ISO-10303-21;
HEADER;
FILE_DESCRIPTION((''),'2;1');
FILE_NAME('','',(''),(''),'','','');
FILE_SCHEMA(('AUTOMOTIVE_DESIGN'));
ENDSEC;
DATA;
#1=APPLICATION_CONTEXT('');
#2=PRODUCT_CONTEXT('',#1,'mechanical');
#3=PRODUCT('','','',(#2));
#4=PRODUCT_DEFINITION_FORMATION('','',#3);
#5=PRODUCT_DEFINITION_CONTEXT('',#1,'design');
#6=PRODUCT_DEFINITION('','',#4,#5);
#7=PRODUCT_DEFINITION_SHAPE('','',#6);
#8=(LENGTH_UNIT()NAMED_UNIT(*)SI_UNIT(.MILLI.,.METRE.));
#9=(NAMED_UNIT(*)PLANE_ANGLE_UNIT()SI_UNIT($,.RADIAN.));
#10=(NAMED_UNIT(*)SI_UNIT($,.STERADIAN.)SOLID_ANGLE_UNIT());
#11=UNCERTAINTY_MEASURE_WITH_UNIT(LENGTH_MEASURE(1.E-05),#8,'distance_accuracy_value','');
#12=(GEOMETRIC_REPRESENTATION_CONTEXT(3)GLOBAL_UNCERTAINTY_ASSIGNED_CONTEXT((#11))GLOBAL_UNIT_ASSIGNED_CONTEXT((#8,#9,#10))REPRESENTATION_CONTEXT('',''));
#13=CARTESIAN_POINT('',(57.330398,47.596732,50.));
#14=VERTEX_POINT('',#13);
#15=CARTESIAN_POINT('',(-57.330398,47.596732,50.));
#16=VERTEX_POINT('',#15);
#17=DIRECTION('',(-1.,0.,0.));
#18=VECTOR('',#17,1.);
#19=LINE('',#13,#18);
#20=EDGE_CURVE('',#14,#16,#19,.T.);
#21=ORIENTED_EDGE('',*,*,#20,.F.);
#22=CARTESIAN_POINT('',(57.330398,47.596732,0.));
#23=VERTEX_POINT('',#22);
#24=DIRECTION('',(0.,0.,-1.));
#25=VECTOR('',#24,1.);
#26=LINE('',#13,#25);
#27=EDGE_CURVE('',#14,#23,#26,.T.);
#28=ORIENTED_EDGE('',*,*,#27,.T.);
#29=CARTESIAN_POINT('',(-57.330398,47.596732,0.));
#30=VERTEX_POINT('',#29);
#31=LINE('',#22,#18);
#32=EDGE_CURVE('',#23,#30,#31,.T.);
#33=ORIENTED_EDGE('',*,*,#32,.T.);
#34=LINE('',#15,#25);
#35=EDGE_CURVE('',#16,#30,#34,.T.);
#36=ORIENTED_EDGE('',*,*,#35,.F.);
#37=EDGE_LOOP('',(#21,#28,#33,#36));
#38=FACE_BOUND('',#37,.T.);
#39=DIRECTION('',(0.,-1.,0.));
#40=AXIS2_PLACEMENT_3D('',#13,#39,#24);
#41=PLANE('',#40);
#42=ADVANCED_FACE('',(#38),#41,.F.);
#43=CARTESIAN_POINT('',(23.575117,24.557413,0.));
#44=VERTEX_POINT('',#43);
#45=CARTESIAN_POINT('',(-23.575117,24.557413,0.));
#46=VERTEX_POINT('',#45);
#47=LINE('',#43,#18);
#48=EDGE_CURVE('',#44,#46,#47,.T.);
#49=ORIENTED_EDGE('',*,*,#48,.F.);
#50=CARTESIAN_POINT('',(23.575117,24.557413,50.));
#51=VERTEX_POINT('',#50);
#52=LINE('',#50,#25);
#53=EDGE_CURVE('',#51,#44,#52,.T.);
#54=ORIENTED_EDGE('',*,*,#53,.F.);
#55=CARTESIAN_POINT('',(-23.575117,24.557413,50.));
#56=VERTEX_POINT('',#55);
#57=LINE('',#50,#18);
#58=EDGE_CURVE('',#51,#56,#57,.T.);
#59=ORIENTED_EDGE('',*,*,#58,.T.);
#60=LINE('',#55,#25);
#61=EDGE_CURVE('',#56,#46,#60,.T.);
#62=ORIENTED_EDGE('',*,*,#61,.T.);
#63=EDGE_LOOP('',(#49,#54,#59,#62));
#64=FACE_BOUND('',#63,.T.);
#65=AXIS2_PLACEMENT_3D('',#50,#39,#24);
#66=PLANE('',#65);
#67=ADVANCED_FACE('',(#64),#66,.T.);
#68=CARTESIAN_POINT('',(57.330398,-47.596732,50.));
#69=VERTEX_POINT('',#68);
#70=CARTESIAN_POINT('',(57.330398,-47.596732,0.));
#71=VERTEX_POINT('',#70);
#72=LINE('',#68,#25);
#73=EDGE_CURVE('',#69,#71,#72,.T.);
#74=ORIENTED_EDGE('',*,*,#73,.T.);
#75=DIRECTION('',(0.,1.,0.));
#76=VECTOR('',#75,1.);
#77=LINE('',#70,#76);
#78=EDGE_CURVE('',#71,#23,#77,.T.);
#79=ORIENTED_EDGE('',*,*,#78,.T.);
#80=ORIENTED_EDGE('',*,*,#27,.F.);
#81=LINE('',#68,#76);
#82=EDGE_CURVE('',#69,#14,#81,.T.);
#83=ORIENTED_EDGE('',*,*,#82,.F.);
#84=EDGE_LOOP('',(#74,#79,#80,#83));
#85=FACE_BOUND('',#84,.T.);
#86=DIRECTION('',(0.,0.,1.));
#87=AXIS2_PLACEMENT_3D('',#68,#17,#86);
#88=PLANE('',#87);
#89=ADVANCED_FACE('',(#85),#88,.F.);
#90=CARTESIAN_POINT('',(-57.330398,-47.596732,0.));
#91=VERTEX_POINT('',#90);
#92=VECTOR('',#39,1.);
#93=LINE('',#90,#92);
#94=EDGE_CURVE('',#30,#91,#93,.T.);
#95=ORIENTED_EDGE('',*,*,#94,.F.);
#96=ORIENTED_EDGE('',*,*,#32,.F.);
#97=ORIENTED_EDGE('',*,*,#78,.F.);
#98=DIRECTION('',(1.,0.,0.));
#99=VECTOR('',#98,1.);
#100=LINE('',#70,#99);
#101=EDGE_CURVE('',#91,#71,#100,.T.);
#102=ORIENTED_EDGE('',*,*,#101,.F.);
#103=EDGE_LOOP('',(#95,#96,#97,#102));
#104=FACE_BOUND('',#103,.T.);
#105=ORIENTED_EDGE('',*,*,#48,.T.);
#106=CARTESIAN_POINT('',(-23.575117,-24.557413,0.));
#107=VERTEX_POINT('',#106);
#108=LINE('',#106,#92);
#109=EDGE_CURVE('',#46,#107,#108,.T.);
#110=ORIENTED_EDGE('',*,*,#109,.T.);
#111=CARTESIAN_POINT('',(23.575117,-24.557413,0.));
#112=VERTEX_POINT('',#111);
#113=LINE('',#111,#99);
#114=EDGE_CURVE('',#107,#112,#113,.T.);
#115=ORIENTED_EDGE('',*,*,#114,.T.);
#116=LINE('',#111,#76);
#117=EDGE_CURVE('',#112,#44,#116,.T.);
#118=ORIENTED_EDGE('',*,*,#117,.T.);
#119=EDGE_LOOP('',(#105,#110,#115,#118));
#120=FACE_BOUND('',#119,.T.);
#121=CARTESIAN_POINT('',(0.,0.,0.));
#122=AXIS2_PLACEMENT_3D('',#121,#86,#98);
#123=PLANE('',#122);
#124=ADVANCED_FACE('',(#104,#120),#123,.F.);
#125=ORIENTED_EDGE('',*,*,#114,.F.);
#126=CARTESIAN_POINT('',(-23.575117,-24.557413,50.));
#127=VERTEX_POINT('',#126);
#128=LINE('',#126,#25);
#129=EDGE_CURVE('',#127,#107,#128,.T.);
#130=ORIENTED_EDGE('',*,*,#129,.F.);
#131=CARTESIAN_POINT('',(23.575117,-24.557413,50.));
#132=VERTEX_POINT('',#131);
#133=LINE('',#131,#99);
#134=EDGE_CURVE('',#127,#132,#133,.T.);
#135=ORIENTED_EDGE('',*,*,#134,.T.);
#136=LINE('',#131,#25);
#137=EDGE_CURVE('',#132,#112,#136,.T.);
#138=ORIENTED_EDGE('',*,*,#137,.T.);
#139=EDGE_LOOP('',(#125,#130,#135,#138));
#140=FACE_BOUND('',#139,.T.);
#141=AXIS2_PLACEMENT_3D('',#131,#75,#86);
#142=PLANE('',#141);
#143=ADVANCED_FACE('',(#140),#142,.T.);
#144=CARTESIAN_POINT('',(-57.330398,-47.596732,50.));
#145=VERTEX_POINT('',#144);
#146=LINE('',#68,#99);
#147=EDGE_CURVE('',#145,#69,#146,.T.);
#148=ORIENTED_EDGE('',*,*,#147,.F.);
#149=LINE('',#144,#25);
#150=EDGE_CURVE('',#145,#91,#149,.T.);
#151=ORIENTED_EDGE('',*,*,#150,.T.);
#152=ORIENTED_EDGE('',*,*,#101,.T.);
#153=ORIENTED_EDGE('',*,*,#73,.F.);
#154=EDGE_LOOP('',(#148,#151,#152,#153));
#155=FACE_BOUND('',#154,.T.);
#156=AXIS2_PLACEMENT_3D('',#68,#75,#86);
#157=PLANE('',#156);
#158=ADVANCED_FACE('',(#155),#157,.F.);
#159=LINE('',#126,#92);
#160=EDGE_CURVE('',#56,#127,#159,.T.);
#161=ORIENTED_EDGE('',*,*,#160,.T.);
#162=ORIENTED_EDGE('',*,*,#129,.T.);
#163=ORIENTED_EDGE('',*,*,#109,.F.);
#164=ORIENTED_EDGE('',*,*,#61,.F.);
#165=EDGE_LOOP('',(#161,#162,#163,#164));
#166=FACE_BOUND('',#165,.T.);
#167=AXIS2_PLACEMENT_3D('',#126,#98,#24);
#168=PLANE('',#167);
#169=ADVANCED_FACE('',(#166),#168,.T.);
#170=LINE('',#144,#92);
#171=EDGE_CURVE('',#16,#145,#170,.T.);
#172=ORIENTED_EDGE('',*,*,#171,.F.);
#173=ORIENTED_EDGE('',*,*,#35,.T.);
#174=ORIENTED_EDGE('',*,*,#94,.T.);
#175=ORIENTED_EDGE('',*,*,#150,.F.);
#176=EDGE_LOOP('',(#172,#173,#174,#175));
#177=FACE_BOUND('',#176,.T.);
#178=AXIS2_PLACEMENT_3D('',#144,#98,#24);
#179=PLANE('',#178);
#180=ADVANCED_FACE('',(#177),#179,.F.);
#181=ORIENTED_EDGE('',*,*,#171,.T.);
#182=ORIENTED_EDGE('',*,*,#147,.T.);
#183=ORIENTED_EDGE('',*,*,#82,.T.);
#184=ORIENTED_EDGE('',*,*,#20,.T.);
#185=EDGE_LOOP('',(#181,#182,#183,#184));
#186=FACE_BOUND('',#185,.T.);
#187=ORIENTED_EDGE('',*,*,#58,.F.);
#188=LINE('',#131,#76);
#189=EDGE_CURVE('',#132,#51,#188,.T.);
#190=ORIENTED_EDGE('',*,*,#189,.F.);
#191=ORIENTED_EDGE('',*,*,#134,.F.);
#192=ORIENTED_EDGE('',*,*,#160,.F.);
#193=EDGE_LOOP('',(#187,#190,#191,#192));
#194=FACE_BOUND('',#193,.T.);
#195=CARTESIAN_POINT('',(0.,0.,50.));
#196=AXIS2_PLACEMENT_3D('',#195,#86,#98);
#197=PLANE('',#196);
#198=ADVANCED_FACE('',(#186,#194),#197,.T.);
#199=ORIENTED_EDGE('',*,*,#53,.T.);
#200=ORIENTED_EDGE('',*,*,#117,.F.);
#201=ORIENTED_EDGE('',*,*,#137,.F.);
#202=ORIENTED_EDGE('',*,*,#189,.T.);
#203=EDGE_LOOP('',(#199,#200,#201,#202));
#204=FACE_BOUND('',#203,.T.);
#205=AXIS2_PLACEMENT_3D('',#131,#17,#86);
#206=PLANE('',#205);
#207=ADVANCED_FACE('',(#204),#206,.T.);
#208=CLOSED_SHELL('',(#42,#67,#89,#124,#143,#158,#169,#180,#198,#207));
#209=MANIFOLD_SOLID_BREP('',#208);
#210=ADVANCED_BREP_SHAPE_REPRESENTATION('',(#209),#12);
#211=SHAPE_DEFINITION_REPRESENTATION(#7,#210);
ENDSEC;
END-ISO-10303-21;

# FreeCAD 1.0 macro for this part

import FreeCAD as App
import Part
import Sketcher

doc = App.newDocument("Part")
body = doc.addObject("PartDesign::Body", "Body")

# Sketch on XY plane
sketch1 = body.newObject("Sketcher::SketchObject", "Sketch")
sketch1.AttachmentSupport = (doc.getObject("XY_Plane"), [""])
sketch1.MapMode = "FlatFace"
sketch1.addGeometry(Part.LineSegment(App.Vector(-57, 48, 0), App.Vector(-57, -48, 0)), False)
sketch1.addGeometry(Part.LineSegment(App.Vector(-57, -48, 0), App.Vector(57, -48, 0)), False)
sketch1.addGeometry(Part.LineSegment(App.Vector(57, -48, 0), App.Vector(57, 48, 0)), False)
sketch1.addGeometry(Part.LineSegment(App.Vector(57, 48, 0), App.Vector(-57, 48, 0)), False)
sketch1.addGeometry(Part.LineSegment(App.Vector(24, -25, 0), App.Vector(-24, -25, 0)), False)
sketch1.addGeometry(Part.LineSegment(App.Vector(-24, -25, 0), App.Vector(-24, 25, 0)), False)
sketch1.addGeometry(Part.LineSegment(App.Vector(-24, 25, 0), App.Vector(24, 25, 0)), False)
sketch1.addGeometry(Part.LineSegment(App.Vector(24, 25, 0), App.Vector(24, -25, 0)), False)
sketch1.addConstraint(Sketcher.Constraint("Coincident", 0, 2, 1, 1))
sketch1.addConstraint(Sketcher.Constraint("Coincident", 1, 2, 2, 1))
sketch1.addConstraint(Sketcher.Constraint("Coincident", 2, 2, 3, 1))
sketch1.addConstraint(Sketcher.Constraint("Coincident", 3, 2, 0, 1))
sketch1.addConstraint(Sketcher.Constraint("Coincident", 4, 2, 5, 1))
sketch1.addConstraint(Sketcher.Constraint("Coincident", 5, 2, 6, 1))
sketch1.addConstraint(Sketcher.Constraint("Coincident", 6, 2, 7, 1))
sketch1.addConstraint(Sketcher.Constraint("Coincident", 7, 2, 4, 1))
sketch1.addConstraint(Sketcher.Constraint("Vertical", 0))
sketch1.addConstraint(Sketcher.Constraint("Horizontal", 1))
sketch1.addConstraint(Sketcher.Constraint("Vertical", 2))
sketch1.addConstraint(Sketcher.Constraint("Horizontal", 3))
sketch1.addConstraint(Sketcher.Constraint("Horizontal", 4))
sketch1.addConstraint(Sketcher.Constraint("Vertical", 5))
sketch1.addConstraint(Sketcher.Constraint("Horizontal", 6))
sketch1.addConstraint(Sketcher.Constraint("Vertical", 7))
sketch1.addConstraint(Sketcher.Constraint("Symmetric", 0, 2, 2, 2, -1, 1))
sketch1.addConstraint(Sketcher.Constraint("Symmetric", 4, 2, 6, 2, -1, 1))
sketch1.addConstraint(Sketcher.Constraint("DistanceX", 1, 1, 1, 2, 114.660796))
sketch1.addConstraint(Sketcher.Constraint("DistanceX", 4, 2, 4, 1, 47.150234))
sketch1.addConstraint(Sketcher.Constraint("DistanceY", 0, 2, 0, 1, 95.193464))
sketch1.addConstraint(Sketcher.Constraint("DistanceY", 5, 1, 5, 2, 49.114827))
pad1 = body.newObject("PartDesign::Pad", "Pad")
pad1.Profile = sketch1
pad1.Length = 50

doc.recompute()
